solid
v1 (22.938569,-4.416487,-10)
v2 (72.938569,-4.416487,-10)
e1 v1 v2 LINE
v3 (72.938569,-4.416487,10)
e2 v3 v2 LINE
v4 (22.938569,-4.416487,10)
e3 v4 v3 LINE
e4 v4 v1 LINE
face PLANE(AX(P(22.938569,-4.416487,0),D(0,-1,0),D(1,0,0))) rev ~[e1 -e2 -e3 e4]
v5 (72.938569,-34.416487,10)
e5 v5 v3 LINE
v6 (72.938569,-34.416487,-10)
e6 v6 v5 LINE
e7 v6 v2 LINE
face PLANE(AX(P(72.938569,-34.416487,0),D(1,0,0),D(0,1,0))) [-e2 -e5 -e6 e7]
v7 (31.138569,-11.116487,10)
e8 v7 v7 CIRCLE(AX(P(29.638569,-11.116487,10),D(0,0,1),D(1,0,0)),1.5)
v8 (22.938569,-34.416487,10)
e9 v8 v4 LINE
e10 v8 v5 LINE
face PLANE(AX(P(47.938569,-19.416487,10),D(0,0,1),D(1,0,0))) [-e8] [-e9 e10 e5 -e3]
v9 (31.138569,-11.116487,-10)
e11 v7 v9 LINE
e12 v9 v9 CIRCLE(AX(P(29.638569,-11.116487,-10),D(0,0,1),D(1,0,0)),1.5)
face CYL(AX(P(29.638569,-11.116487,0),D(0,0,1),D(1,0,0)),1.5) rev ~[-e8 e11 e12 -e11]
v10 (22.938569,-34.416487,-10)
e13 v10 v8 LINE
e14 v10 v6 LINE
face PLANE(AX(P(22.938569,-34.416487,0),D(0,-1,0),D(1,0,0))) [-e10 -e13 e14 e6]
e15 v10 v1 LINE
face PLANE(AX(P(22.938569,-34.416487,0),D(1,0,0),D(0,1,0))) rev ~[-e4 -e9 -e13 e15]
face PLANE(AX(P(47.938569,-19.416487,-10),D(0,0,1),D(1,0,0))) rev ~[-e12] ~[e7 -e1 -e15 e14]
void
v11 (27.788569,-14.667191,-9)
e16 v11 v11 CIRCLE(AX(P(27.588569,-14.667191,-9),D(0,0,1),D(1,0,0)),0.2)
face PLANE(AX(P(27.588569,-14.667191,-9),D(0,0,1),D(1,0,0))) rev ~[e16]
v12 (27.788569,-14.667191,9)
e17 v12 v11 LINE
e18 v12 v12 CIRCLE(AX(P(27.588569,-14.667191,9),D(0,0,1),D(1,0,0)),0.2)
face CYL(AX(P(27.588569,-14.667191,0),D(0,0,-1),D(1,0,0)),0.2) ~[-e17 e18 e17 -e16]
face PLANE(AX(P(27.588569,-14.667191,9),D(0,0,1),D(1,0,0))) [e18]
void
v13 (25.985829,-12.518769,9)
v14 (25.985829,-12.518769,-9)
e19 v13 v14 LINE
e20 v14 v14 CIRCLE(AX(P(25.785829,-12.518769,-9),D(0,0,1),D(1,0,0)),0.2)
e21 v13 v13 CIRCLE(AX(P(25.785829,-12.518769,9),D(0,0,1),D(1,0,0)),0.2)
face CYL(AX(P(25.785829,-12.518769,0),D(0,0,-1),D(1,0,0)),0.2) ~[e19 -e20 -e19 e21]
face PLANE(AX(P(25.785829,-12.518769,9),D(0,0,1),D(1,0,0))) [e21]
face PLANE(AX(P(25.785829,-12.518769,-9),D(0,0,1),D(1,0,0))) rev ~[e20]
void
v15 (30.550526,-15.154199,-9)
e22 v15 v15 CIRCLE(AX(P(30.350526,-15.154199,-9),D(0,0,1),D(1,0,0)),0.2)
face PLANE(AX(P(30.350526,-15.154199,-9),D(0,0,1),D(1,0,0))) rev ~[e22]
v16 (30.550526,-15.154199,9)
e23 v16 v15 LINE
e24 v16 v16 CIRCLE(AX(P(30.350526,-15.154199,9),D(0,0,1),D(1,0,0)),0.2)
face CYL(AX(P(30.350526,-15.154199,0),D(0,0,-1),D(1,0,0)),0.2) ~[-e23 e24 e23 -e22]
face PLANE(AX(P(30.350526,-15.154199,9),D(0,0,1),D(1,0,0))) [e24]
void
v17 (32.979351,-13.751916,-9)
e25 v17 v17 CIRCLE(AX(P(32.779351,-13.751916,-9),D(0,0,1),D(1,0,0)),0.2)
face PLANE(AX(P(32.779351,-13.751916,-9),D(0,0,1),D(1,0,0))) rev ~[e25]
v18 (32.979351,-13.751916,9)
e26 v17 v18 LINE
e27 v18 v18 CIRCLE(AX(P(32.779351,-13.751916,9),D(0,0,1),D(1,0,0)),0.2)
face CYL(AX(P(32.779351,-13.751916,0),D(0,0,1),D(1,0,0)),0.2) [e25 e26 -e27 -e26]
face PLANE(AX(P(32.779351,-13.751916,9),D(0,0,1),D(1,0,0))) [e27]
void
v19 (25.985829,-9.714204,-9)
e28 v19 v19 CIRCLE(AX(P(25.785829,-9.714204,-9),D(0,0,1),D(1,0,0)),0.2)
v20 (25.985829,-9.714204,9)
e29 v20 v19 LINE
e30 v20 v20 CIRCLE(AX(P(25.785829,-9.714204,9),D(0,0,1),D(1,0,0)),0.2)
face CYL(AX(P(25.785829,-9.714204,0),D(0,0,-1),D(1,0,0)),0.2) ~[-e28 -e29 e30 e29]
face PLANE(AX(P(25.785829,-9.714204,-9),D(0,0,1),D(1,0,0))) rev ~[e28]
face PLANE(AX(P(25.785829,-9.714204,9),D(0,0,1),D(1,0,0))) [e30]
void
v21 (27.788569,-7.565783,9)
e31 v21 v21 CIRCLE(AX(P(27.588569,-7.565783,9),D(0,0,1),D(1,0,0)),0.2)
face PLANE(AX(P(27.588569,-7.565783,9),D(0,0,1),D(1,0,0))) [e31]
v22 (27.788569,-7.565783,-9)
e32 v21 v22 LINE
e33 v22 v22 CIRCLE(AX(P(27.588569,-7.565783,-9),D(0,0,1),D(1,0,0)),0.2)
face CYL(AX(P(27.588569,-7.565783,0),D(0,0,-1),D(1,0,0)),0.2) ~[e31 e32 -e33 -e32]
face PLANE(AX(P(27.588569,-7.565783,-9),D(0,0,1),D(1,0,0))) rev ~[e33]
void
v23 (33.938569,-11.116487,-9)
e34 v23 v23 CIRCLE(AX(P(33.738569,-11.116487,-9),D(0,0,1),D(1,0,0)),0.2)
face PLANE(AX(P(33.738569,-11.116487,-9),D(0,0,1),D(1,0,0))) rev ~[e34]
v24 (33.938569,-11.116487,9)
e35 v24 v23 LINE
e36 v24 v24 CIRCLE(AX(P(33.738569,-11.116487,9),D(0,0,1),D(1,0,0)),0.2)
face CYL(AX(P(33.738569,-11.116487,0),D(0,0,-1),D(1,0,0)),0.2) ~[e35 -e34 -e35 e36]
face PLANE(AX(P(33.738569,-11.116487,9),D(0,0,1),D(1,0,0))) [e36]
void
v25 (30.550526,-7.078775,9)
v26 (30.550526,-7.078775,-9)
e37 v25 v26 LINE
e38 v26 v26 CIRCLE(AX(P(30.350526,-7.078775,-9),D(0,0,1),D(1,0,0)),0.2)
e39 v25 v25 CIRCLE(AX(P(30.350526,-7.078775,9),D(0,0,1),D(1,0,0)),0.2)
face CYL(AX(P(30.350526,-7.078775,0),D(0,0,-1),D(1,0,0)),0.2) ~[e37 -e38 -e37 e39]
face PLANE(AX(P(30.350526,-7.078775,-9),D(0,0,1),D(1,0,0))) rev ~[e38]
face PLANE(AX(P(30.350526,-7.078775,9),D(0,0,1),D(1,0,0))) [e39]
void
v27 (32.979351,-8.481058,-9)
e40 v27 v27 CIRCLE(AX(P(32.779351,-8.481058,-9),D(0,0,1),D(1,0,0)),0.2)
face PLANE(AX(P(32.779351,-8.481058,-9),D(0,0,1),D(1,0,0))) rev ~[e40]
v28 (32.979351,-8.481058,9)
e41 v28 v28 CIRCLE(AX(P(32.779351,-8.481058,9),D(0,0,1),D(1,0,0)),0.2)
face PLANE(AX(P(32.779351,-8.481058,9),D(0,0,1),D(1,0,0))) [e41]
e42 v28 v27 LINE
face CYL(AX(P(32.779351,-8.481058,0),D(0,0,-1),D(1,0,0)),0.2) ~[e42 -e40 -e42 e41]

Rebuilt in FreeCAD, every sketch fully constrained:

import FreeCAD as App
import Part
import Sketcher

V = App.Vector
Q = App.Units.Quantity

doc = App.newDocument("Part")
params = doc.addObject("Spreadsheet::Sheet", "Params")
for row, (alias, value) in enumerate([
    ("sketch1_width", "50 mm"),
    ("sketch1_height", "30 mm"),
    ("pad1_length", "20 mm"),
    ("sketch2_diameter", "3 mm"),
    ("sketch2_diameter2", "0.4 mm"),
    ("pocket1_length", "18 mm"),
    ("sketch3_diameter", "3 mm"),
    ("pocket2_length", "25 mm"),
], start=1):
    params.set(f"A{row}", alias)
    params.set(f"B{row}", "=" + value)
    params.setAlias(f"B{row}", alias)

body = doc.addObject("PartDesign::Body", "Body")

# Sketch on XY plane
sketch1 = doc.addObject("Sketcher::SketchObject", "Sketch")
body.addObject(sketch1)
sketch1.AttachmentSupport = (doc.XY_Plane, [""])
sketch1.MapMode = "FlatFace"
sketch1.addGeometry([
    Part.LineSegment(V(22.938569, -4.416487, 0), V(22.938569, -34.416487, 0)),
    Part.LineSegment(V(22.938569, -34.416487, 0), V(72.938569, -34.416487, 0)),
    Part.LineSegment(V(72.938569, -34.416487, 0), V(72.938569, -4.416487, 0)),
    Part.LineSegment(V(72.938569, -4.416487, 0), V(22.938569, -4.416487, 0)),
], False)
sketch1.addConstraint([
    Sketcher.Constraint("Coincident", 0, 2, 1, 1),
    Sketcher.Constraint("Coincident", 1, 2, 2, 1),
    Sketcher.Constraint("Coincident", 2, 2, 3, 1),
    Sketcher.Constraint("Coincident", 3, 2, 0, 1),
    Sketcher.Constraint("Vertical", 0),
    Sketcher.Constraint("Horizontal", 1),
    Sketcher.Constraint("Vertical", 2),
    Sketcher.Constraint("Horizontal", 3),
    Sketcher.Constraint("DistanceX", 1, 1, 1, 2, Q("50 mm")),
    Sketcher.Constraint("DistanceY", 0, 2, 0, 1, Q("30 mm")),
    Sketcher.Constraint("DistanceX", -1, 1, 0, 2, Q("22.938569 mm")),
    Sketcher.Constraint("DistanceY", 0, 2, -1, 1, Q("34.416487 mm")),
])
sketch1.setExpression("Constraints[8]", "Params.sketch1_width")
sketch1.setExpression("Constraints[9]", "Params.sketch1_height")
pad1 = doc.addObject("PartDesign::Pad", "Pad")
body.addObject(pad1)
pad1.Profile = sketch1
pad1.setExpression("Length", "Params.pad1_length")
pad1.Midplane = True

# Sketch on XY plane
sketch2 = doc.addObject("Sketcher::SketchObject", "Sketch001")
body.addObject(sketch2)
sketch2.AttachmentSupport = (doc.XY_Plane, [""])
sketch2.MapMode = "FlatFace"
sketch2.addGeometry([
    Part.Circle(V(29.638569, -11.116487, 0), V(0, 0, 1), 1.5),  # 0
    Part.Circle(V(33.738569, -11.116487, 0), V(0, 0, 1), 0.2),  # 1
    Part.Circle(V(32.779351, -8.481058, 0), V(0, 0, 1), 0.2),  # 2
    Part.Circle(V(30.350526, -7.078775, 0), V(0, 0, 1), 0.2),  # 3
    Part.Circle(V(27.588569, -7.565783, 0), V(0, 0, 1), 0.2),  # 4
    Part.Circle(V(25.785829, -9.714204, 0), V(0, 0, 1), 0.2),  # 5
    Part.Circle(V(25.785829, -12.518769, 0), V(0, 0, 1), 0.2),  # 6
    Part.Circle(V(27.588569, -14.667191, 0), V(0, 0, 1), 0.2),  # 7
    Part.Circle(V(30.350526, -15.154199, 0), V(0, 0, 1), 0.2),  # 8
    Part.Circle(V(32.779351, -13.751916, 0), V(0, 0, 1), 0.2),  # 9
], False)
sketch2.addConstraint([
    Sketcher.Constraint("Equal", 1, 2),
    Sketcher.Constraint("Equal", 2, 3),
    Sketcher.Constraint("Equal", 3, 4),
    Sketcher.Constraint("Equal", 4, 5),
    Sketcher.Constraint("Equal", 5, 6),
    Sketcher.Constraint("Equal", 6, 7),
    Sketcher.Constraint("Equal", 7, 8),
    Sketcher.Constraint("Equal", 8, 9),
    Sketcher.Constraint("Horizontal", 0, 3, 1, 3),
    Sketcher.Constraint("Vertical", 5, 3, 6, 3),
    Sketcher.Constraint("Vertical", 4, 3, 7, 3),
    Sketcher.Constraint("Vertical", 3, 3, 8, 3),
    Sketcher.Constraint("Vertical", 2, 3, 9, 3),
    Sketcher.Constraint("Diameter", 0, Q("3 mm")),
    Sketcher.Constraint("Diameter", 1, Q("0.4 mm")),
    Sketcher.Constraint("DistanceX", 0, 3, 1, 3, Q("4.1 mm")),
    Sketcher.Constraint("DistanceX", 4, 3, 0, 3, Q("2.05 mm")),
    Sketcher.Constraint("DistanceY", 8, 3, -1, 1, Q("15.154199 mm")),
    Sketcher.Constraint("DistanceX", -1, 1, 0, 3, Q("29.638569 mm")),
    Sketcher.Constraint("DistanceX", -1, 1, 2, 3, Q("32.779351 mm")),
    Sketcher.Constraint("DistanceX", -1, 1, 5, 3, Q("25.785829 mm")),
    Sketcher.Constraint("DistanceY", 6, 3, -1, 1, Q("12.518769 mm")),
    Sketcher.Constraint("DistanceY", 7, 3, -1, 1, Q("14.667191 mm")),
    Sketcher.Constraint("DistanceY", 1, 3, 2, 3, Q("2.635429 mm")),
    Sketcher.Constraint("DistanceY", 0, 3, 3, 3, Q("4.037712 mm")),
    Sketcher.Constraint("DistanceY", 5, 3, 4, 3, Q("2.148422 mm")),
    Sketcher.Constraint("DistanceY", 5, 3, 3, 3, Q("2.635429 mm")),
    Sketcher.Constraint("DistanceY", 6, 3, 2, 3, Q("4.037712 mm")),
    Sketcher.Constraint("DistanceY", 9, 3, 1, 3, Q("2.635429 mm")),
    Sketcher.Constraint("DistanceX", -1, 1, 3, 3, Q("30.350526 mm")),
])
sketch2.setExpression("Constraints[13]", "Params.sketch2_diameter")
sketch2.setExpression("Constraints[14]", "Params.sketch2_diameter2")
pocket1 = doc.addObject("PartDesign::Pocket", "Pocket")
body.addObject(pocket1)
pocket1.Profile = sketch2
pocket1.setExpression("Length", "Params.pocket1_length")
pocket1.Midplane = True

# Sketch on XY plane
sketch3 = doc.addObject("Sketcher::SketchObject", "Sketch002")
body.addObject(sketch3)
sketch3.AttachmentSupport = (doc.XY_Plane, [""])
sketch3.MapMode = "FlatFace"
sketch3.addGeometry(Part.Circle(V(29.638569, -11.116487, 0), V(0, 0, 1), 1.5), False)
sketch3.addConstraint([
    Sketcher.Constraint("Diameter", 0, Q("3 mm")),
    Sketcher.Constraint("DistanceX", -1, 1, 0, 3, Q("29.638569 mm")),
    Sketcher.Constraint("DistanceY", 0, 3, -1, 1, Q("11.116487 mm")),
])
sketch3.setExpression("Constraints[0]", "Params.sketch3_diameter")
pocket2 = doc.addObject("PartDesign::Pocket", "Pocket001")
body.addObject(pocket2)
pocket2.Profile = sketch3
pocket2.setExpression("Length", "Params.pocket2_length")
pocket2.Midplane = True

doc.recompute()
